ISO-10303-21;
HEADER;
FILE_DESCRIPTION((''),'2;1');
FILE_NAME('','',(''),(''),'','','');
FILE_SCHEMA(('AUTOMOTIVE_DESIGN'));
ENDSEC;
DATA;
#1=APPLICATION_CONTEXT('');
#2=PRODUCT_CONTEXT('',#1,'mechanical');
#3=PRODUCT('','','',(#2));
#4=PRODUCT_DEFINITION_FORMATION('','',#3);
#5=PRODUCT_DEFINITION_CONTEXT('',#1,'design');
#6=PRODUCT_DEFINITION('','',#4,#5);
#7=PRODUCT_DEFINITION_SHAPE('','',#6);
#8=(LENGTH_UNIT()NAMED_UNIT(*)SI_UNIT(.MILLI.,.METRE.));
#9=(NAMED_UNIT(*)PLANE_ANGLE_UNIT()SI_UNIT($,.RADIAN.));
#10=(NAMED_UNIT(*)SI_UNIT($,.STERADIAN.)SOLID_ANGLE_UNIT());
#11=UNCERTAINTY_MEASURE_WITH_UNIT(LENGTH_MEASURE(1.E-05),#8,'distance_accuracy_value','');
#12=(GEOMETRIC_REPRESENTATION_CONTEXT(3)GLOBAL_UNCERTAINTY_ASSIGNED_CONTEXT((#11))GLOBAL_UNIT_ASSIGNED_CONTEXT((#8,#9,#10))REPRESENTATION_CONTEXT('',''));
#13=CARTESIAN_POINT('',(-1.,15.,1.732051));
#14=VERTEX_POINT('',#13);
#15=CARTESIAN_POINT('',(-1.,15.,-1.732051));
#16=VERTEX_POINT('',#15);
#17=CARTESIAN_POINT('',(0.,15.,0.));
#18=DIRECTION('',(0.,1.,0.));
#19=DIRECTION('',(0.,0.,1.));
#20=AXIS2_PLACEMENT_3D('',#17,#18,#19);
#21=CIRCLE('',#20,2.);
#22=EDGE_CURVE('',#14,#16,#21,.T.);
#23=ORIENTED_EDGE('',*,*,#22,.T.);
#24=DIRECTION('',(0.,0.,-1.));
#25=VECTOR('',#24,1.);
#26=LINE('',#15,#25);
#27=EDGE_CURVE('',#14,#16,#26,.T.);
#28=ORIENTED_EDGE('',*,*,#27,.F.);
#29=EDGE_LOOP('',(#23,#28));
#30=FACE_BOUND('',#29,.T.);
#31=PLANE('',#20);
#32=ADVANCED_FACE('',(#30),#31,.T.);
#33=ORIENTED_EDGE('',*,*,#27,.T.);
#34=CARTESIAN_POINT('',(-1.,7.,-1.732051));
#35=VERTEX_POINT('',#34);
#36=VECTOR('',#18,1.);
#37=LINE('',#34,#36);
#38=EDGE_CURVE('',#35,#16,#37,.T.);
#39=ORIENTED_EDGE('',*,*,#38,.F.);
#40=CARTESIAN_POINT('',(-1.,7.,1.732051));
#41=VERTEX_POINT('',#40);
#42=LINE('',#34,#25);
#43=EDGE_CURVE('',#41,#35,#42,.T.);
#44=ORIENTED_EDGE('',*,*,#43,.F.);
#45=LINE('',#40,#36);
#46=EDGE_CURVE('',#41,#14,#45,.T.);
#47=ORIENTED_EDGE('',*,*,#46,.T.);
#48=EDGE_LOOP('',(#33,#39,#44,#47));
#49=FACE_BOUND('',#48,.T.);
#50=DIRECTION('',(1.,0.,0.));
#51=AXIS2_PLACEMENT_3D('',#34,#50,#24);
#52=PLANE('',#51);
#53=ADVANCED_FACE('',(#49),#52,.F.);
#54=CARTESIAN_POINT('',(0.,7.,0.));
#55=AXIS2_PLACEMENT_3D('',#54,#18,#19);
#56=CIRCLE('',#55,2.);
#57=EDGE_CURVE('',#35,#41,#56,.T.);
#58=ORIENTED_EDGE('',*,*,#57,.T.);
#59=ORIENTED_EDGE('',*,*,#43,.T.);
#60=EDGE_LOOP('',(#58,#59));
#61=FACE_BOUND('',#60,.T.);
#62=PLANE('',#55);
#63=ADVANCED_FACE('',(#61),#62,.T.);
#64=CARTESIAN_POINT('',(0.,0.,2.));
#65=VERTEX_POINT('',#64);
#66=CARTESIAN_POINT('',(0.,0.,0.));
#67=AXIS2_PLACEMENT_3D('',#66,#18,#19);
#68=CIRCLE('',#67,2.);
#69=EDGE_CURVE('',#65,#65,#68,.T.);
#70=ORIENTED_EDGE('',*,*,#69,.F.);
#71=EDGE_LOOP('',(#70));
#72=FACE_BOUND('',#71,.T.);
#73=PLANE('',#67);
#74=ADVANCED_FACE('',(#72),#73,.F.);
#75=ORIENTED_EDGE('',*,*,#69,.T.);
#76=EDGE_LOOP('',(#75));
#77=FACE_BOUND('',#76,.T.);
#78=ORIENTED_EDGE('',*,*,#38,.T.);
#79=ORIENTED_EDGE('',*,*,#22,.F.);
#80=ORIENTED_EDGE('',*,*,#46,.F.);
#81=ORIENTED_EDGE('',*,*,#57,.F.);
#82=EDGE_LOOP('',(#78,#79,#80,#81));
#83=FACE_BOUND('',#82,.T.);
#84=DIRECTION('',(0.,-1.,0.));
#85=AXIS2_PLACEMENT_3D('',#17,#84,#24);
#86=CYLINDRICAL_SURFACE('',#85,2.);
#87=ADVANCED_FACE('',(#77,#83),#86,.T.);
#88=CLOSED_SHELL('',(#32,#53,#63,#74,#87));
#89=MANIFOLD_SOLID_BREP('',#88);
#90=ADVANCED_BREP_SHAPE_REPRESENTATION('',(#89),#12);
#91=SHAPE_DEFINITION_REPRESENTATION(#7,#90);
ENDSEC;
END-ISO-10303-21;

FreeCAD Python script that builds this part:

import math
import FreeCAD as App
import Part
import Sketcher
Q = App.Units.Quantity

doc = App.newDocument("Part")
body = doc.addObject("PartDesign::Body", "Body")

# Sketch on XZ plane
sketch1 = body.newObject("Sketcher::SketchObject", "Sketch")
sketch1.AttachmentSupport = (doc.getObject("XZ_Plane"), [""])
sketch1.MapMode = "FlatFace"
sketch1.addGeometry(Part.Circle(App.Vector(0, 0, 0), App.Vector(0, 0, 1), 2), False)
sketch1.addConstraint([
    Sketcher.Constraint("Coincident", 0, 3, -1, 1),
    Sketcher.Constraint("Diameter", 0, Q("4 mm")),
])
pad1 = body.newObject("PartDesign::Pad", "Pad")
pad1.Profile = sketch1
pad1.Length = 15
pad1.Reversed = True

# Sketch on XZ plane
sketch2 = body.newObject("Sketcher::SketchObject", "Sketch001")
sketch2.AttachmentSupport = (doc.getObject("XZ_Plane"), [""])
sketch2.MapMode = "FlatFace"
sketch2.AttachmentOffset = App.Placement(App.Vector(0, 0, -7), App.Rotation())
sketch2.addGeometry([
    Part.LineSegment(App.Vector(-1, 1.7, 0), App.Vector(-1, -1.7, 0)),
    Part.ArcOfCircle(Part.Circle(App.Vector(0, 0, 0), App.Vector(0, 0, 1), 2), math.radians(120), math.radians(240)),
], False)
sketch2.addConstraint([
    Sketcher.Constraint("Coincident", 0, 1, 1, 1),
    Sketcher.Constraint("Coincident", 1, 2, 0, 2),
    Sketcher.Constraint("Vertical", 0),
    Sketcher.Constraint("Coincident", 1, 3, -1, 1),
    Sketcher.Constraint("Radius", 1, Q("2 mm")),
    Sketcher.Constraint("DistanceX", 0, 1, -1, 1, Q("1 mm")),
])
pocket1 = body.newObject("PartDesign::Pocket", "Pocket")
pocket1.Profile = sketch2
pocket1.Length = 8

doc.recompute()
